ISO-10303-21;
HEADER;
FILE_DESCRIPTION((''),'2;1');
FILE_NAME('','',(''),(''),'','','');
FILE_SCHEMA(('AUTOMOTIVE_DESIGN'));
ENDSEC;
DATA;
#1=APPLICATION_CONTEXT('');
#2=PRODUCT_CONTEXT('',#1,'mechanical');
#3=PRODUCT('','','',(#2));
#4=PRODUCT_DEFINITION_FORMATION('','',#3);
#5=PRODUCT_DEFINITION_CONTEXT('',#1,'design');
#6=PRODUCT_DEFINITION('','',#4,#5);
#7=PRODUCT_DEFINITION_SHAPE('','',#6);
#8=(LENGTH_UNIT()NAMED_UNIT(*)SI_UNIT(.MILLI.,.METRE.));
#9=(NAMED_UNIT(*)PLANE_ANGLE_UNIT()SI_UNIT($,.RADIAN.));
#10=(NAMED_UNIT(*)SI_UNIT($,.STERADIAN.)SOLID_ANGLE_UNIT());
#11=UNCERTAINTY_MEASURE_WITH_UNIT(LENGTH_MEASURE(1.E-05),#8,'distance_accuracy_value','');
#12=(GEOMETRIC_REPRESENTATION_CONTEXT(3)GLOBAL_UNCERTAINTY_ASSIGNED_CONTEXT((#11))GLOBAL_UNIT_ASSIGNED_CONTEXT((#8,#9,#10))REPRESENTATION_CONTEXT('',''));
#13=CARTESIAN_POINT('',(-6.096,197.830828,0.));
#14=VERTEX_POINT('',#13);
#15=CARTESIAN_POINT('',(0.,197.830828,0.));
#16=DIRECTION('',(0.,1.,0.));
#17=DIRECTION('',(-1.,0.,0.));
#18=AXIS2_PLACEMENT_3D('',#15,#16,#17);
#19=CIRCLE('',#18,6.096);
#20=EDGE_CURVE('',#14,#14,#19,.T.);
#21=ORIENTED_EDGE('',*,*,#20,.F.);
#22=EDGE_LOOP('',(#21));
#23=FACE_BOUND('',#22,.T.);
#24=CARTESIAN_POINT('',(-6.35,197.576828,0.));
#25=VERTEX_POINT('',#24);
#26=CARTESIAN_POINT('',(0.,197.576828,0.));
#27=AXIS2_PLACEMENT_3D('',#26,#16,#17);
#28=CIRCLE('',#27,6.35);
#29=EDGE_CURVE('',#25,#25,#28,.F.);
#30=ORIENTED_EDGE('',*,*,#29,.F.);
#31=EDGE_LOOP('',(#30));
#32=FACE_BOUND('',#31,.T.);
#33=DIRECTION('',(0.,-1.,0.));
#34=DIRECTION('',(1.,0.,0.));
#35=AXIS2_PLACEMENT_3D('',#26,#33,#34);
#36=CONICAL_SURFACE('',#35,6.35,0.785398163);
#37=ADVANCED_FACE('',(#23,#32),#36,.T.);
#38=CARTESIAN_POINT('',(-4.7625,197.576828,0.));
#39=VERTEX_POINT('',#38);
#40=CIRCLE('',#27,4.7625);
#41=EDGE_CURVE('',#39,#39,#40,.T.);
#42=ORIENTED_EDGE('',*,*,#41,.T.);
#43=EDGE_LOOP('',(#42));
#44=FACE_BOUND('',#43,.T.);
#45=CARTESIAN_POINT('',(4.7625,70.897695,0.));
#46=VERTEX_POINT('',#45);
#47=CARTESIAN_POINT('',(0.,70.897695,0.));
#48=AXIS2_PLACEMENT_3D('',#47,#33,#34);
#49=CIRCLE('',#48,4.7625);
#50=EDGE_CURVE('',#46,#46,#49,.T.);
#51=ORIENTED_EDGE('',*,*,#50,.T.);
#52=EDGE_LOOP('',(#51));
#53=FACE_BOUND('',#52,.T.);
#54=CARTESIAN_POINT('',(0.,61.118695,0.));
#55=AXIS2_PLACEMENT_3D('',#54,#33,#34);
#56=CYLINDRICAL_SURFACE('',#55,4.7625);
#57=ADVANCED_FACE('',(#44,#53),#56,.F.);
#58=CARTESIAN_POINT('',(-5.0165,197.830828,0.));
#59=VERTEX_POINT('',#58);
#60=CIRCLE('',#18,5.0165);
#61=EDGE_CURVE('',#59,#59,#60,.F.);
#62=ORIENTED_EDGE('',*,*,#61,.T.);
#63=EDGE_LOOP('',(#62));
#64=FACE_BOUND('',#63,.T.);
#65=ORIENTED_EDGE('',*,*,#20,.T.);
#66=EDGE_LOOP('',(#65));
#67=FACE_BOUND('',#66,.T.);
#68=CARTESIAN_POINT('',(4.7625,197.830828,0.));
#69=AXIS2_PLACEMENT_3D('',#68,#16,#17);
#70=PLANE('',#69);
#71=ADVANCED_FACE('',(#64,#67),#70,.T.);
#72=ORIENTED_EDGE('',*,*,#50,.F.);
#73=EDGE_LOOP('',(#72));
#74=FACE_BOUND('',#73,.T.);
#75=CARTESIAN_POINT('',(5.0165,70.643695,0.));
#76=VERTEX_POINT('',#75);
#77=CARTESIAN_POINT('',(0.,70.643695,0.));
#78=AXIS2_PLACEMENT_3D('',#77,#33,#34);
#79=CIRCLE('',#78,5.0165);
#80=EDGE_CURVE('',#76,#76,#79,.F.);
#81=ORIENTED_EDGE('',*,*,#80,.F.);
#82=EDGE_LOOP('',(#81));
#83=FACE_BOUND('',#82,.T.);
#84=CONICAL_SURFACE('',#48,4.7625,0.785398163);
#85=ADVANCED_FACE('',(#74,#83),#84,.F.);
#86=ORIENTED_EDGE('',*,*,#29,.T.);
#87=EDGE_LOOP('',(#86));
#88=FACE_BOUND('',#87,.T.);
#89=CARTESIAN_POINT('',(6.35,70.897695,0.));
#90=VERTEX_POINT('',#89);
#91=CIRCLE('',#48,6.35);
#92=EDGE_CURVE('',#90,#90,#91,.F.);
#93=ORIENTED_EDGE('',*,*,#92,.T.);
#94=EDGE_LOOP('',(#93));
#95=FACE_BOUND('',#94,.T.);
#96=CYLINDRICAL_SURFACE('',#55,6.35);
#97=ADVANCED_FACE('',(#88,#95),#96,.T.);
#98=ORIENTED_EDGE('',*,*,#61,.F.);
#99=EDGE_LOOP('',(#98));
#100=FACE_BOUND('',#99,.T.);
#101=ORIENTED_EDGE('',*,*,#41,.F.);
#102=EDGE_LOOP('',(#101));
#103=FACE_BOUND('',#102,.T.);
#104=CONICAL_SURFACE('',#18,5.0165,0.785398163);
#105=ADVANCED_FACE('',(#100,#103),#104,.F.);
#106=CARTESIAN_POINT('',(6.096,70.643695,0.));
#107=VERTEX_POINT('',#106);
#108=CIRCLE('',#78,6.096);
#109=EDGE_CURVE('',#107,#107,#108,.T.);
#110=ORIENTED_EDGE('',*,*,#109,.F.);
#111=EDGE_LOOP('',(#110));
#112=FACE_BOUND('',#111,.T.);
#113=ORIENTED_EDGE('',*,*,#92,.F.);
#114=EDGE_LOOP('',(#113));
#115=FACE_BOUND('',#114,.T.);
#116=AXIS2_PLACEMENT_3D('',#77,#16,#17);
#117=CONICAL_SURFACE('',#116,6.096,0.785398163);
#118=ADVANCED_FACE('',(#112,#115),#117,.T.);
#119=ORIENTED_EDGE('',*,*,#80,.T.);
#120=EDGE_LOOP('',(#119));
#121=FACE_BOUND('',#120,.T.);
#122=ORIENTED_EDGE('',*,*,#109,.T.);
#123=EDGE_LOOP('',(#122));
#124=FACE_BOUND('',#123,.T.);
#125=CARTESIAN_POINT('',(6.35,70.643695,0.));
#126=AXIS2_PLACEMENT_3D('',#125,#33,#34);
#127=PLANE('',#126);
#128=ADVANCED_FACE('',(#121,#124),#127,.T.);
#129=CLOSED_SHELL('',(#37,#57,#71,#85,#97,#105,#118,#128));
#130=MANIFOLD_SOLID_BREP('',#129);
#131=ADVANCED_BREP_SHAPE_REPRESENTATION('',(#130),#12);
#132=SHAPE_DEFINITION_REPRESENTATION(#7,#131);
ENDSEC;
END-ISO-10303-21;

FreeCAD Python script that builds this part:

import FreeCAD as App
import Part
import Sketcher
from FreeCAD import Vector
Q = App.Units.Quantity


def edges_at(feature, points):
    """Names of the edges that pass closest to the given points."""
    edges = feature.Shape.Edges
    near = lambda p: min(range(len(edges)), key=lambda i: edges[i].distToShape(Part.Vertex(*p))[0])
    return sorted({f"Edge{near(p) + 1}" for p in points})


def add_polygon(sketch, points):
    """Adds a closed chain of lines whose ends are joined by coincident constraints."""
    first, n = sketch.GeometryCount, len(points)
    for a, b in zip(points, points[1:] + points[:1]):
        sketch.addGeometry(Part.LineSegment(App.Vector(*a, 0), App.Vector(*b, 0)), False)
    for i in range(n):
        sketch.addConstraint(Sketcher.Constraint("Coincident", first + i, 2, first + (i + 1) % n, 1))

doc = App.newDocument("Part")
body = doc.addObject("PartDesign::Body", "Body")

sketch1 = body.newObject("Sketcher::SketchObject", "Sketch")
sketch1.AttachmentSupport = (doc.getObject("XY_Plane"), [""])
sketch1.MapMode = "FlatFace"
add_polygon(sketch1, [(4.8, 197.8), (4.8, 70.6), (6.3, 70.6), (6.3, 197.8)])
sketch1.addConstraint(Sketcher.Constraint("Vertical", 0))
sketch1.addConstraint(Sketcher.Constraint("Horizontal", 1))
sketch1.addConstraint(Sketcher.Constraint("Vertical", 2))
sketch1.addConstraint(Sketcher.Constraint("Horizontal", 3))
sketch1.addConstraint(Sketcher.Constraint("DistanceX", 1, 1, 1, 2, Q("0.0625 in")))
sketch1.addConstraint(Sketcher.Constraint("DistanceX", -1, 1, 1, 2, Q("0.25 in")))
sketch1.addConstraint(Sketcher.Constraint("DistanceY", 0, 2, 0, 1, 127.187133))
sketch1.addConstraint(Sketcher.Constraint("DistanceY", -1, 1, 2, 2, 197.830828))
revolution = body.newObject("PartDesign::Revolution", "Revolution")
revolution.Profile = sketch1
revolution.ReferenceAxis = (sketch1, ["V_Axis"])
revolution.Angle = 360
doc.recompute()

chamfer = body.newObject("PartDesign::Chamfer", "Chamfer")
chamfer.Base = (revolution, edges_at(revolution, [
    (-6.35, 70.644, 0),
    (-6.35, 197.831, 0),
    (-4.763, 197.831, 0),
    (-4.763, 70.644, 0),
]))
chamfer.Size = Q("0.01 in")

doc.recompute()
